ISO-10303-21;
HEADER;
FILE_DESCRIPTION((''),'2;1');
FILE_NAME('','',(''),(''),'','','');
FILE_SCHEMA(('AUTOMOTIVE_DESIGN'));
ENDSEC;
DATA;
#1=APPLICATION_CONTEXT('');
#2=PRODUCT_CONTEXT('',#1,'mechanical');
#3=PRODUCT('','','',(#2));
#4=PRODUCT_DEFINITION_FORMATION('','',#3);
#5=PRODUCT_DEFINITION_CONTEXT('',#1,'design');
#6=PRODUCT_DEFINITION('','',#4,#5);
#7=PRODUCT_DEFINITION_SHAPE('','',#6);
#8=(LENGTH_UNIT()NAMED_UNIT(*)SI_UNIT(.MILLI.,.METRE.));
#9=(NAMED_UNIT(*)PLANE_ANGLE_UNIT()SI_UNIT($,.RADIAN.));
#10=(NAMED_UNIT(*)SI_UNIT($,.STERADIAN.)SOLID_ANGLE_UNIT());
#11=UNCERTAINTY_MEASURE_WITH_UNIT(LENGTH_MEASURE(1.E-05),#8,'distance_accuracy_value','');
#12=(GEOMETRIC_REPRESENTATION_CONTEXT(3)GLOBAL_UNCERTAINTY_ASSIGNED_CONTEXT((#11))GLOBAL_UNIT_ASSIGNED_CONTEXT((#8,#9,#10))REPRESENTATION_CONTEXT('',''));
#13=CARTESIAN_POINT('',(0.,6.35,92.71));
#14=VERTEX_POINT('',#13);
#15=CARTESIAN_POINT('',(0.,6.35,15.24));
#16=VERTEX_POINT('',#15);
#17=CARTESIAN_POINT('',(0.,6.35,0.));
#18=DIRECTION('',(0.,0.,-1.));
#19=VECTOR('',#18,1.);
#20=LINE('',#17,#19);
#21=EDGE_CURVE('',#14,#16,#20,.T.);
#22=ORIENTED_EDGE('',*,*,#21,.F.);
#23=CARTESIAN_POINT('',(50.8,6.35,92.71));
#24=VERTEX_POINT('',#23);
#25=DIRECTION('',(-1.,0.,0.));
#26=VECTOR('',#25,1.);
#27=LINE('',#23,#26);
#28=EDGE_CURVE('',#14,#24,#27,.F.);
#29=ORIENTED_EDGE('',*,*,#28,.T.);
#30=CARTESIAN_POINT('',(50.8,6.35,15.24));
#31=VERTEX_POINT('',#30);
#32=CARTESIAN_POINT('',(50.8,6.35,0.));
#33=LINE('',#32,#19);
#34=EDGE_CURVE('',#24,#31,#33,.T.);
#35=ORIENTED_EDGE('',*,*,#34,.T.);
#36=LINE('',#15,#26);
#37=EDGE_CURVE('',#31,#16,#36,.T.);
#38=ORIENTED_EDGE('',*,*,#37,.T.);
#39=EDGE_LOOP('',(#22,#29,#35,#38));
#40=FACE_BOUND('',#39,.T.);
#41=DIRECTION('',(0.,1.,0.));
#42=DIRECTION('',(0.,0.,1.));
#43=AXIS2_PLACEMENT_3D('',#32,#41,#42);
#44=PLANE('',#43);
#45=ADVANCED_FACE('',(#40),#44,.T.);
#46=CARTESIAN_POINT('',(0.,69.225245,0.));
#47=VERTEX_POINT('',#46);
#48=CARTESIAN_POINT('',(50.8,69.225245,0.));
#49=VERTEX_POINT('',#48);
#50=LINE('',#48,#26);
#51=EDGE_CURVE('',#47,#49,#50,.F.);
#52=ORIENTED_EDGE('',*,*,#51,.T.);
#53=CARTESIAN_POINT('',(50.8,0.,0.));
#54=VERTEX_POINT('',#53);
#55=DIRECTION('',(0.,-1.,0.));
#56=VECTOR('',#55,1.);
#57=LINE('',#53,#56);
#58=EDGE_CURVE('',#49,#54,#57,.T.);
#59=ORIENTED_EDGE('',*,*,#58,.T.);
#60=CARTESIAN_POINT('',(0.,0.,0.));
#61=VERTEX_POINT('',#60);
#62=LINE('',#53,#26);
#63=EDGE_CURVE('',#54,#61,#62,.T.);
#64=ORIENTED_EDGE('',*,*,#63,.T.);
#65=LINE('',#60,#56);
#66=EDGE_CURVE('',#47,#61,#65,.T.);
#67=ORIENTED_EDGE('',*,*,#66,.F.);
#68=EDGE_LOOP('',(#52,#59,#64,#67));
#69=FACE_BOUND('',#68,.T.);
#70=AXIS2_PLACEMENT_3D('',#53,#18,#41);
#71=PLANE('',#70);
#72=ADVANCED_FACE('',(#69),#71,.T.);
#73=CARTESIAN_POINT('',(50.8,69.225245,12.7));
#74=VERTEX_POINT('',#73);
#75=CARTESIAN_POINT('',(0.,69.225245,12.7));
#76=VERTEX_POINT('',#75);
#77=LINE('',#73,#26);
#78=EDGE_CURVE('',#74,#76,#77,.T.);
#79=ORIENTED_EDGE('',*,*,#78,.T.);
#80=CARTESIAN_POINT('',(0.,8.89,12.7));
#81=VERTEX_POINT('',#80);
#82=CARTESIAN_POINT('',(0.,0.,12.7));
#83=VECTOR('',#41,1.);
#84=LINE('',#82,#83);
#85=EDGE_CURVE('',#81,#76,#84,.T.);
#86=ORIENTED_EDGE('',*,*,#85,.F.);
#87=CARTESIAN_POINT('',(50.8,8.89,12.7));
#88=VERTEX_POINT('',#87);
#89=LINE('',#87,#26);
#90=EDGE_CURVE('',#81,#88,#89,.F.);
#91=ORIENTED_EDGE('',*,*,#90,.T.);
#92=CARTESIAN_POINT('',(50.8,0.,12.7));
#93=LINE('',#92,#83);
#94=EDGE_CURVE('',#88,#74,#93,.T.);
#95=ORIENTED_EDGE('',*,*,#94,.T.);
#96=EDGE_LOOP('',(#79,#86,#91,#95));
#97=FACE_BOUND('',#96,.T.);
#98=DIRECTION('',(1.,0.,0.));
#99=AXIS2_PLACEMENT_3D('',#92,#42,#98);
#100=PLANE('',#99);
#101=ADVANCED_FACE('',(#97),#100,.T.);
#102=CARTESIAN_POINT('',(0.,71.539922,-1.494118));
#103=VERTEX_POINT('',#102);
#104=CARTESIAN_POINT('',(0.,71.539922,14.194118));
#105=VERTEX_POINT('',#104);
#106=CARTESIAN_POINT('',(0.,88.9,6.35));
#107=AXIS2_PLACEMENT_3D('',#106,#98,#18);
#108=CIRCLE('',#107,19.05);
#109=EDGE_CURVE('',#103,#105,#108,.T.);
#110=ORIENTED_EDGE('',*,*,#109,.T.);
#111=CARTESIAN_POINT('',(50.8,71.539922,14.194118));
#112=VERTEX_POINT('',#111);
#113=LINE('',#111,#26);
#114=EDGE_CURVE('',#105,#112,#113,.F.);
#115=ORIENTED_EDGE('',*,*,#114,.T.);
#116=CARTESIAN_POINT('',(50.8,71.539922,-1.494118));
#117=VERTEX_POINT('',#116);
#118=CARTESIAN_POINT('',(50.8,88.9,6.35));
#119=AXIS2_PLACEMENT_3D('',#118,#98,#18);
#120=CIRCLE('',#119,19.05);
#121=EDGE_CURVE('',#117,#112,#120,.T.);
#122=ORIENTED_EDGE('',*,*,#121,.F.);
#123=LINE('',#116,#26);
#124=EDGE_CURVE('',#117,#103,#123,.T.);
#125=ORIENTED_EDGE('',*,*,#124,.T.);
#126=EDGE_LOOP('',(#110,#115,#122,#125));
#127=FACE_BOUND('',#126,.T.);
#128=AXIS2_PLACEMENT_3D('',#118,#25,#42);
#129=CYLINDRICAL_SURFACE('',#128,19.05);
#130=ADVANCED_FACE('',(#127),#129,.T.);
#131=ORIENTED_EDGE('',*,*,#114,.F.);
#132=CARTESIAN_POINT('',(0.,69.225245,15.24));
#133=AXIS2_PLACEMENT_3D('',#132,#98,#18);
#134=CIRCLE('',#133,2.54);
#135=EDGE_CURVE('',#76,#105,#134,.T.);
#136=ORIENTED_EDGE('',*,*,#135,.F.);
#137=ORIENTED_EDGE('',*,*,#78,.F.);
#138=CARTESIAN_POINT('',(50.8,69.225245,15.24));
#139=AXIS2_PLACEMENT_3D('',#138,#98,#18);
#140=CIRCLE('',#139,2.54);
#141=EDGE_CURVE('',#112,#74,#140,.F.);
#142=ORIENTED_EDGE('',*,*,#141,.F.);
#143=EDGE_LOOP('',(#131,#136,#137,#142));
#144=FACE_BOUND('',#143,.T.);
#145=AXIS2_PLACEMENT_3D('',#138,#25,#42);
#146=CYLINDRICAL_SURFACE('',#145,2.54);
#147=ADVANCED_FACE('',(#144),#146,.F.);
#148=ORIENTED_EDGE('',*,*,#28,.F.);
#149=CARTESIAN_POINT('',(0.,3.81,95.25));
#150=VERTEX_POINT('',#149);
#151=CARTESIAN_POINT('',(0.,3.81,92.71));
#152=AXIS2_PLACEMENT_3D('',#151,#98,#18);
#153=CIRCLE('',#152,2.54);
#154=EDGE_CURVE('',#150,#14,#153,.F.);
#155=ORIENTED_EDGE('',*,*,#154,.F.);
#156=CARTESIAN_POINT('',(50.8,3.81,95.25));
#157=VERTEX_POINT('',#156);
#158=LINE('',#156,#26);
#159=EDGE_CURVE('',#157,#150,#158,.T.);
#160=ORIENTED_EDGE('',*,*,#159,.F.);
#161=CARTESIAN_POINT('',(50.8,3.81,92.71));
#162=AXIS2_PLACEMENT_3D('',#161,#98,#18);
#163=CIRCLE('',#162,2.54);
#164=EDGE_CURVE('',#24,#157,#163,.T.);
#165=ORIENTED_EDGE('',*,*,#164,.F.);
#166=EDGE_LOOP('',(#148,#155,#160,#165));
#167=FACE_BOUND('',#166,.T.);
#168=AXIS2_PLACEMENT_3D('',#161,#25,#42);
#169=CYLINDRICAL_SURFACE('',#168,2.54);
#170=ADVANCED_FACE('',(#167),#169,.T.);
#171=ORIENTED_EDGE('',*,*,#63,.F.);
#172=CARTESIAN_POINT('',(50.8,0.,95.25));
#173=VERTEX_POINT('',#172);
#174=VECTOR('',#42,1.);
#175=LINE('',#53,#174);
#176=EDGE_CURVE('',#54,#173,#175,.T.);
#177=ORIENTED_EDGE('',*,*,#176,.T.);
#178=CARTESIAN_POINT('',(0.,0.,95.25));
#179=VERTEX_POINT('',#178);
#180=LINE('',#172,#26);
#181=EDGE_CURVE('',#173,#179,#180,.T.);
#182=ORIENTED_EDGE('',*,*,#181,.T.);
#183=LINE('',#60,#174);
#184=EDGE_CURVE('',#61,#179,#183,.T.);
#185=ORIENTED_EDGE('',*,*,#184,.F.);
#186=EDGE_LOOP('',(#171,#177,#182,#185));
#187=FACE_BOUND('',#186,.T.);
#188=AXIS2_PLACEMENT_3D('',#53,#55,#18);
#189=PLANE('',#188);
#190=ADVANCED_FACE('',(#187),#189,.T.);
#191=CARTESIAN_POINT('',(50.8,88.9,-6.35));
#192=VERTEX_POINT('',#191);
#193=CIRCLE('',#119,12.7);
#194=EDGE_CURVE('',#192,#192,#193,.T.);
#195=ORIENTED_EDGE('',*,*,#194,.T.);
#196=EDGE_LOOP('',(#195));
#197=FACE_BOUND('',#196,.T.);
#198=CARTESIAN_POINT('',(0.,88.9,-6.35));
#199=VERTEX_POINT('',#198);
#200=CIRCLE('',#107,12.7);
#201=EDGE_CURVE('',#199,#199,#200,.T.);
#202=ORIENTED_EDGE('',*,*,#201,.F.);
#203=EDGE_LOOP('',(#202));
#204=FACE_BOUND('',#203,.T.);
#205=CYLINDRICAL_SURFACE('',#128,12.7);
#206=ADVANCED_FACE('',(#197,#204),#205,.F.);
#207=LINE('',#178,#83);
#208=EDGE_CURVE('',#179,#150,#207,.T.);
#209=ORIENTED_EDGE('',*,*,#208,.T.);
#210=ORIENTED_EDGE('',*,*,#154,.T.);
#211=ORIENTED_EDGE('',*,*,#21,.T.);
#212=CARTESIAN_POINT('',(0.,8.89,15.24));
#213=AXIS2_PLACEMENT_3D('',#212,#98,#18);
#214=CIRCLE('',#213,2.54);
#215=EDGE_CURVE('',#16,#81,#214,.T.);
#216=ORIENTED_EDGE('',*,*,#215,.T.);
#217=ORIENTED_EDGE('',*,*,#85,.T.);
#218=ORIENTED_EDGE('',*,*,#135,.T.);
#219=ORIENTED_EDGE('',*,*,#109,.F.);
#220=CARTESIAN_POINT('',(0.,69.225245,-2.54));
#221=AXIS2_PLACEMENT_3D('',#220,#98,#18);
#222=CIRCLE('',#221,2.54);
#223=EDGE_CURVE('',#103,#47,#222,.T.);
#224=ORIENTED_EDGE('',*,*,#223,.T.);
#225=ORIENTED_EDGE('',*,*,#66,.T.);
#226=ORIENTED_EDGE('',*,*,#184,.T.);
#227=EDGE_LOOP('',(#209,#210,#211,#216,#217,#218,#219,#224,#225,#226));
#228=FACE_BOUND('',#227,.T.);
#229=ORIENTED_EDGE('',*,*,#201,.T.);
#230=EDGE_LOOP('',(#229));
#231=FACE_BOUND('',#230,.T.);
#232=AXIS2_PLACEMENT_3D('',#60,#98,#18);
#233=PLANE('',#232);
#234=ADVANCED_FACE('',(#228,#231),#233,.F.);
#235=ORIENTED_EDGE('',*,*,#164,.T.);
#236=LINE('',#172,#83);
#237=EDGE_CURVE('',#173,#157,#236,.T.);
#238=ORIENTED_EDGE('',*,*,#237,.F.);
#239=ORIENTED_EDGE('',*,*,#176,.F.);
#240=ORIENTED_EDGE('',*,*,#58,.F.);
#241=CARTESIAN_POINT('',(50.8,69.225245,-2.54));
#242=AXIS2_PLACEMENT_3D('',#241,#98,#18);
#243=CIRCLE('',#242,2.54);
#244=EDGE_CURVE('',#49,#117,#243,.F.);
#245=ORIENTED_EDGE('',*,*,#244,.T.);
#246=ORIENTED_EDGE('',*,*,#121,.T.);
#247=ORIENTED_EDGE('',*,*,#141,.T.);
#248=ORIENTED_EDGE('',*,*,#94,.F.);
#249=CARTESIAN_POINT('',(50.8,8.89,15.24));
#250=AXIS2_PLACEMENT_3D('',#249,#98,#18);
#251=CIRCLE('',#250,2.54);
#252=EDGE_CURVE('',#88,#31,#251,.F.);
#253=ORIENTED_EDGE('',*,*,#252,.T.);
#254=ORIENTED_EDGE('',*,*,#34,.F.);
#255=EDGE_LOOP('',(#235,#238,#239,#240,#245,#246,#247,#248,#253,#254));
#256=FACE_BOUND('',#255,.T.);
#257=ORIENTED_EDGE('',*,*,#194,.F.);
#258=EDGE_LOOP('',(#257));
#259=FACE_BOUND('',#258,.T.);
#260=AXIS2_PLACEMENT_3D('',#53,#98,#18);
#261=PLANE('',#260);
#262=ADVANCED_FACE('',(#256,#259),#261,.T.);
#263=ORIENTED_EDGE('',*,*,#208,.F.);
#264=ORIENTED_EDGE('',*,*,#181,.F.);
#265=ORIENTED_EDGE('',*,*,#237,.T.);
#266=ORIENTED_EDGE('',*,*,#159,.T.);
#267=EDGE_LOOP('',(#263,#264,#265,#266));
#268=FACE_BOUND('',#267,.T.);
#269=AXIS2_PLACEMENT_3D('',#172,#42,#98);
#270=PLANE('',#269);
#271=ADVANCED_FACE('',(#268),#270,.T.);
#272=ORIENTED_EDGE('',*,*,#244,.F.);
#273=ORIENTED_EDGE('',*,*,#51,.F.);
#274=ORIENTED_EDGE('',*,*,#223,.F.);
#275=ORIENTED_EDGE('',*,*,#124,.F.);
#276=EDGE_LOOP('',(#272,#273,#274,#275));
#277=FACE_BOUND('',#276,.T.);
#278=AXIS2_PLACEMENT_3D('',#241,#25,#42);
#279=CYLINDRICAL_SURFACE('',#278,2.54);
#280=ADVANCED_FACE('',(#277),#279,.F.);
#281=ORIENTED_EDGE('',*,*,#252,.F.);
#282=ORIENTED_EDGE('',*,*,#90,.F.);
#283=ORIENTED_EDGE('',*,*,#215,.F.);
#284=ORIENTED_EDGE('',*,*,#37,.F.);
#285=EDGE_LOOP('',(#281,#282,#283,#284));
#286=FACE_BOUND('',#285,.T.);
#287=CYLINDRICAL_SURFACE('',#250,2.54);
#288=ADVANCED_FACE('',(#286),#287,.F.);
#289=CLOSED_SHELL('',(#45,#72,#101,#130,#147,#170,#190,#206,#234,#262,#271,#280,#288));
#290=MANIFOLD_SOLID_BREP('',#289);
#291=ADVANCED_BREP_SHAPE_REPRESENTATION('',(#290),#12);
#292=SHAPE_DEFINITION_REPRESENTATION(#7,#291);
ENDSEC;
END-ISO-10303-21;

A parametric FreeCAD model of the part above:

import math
import FreeCAD as App
import Part
import Sketcher
Q = App.Units.Quantity


def edges_at(feature, points):
    """Names of the edges that pass closest to the given points."""
    edges = feature.Shape.Edges
    near = lambda p: min(range(len(edges)), key=lambda i: edges[i].distToShape(Part.Vertex(*p))[0])
    return sorted({f"Edge{near(p) + 1}" for p in points})

doc = App.newDocument("Part")
body = doc.addObject("PartDesign::Body", "Body")

sketch1 = doc.addObject("Sketcher::SketchObject", "Sketch")
body.addObject(sketch1)
sketch1.AttachmentSupport = (doc.YZ_Plane, [""])
sketch1.MapMode = "FlatFace"
sketch1.addGeometry(Part.LineSegment(App.Vector(0, 95.25, 0), App.Vector(0, 0, 0)), False)
sketch1.addGeometry(Part.LineSegment(App.Vector(0, 0, 0), App.Vector(70.939488, 0, 0)), False)
sketch1.addGeometry(Part.ArcOfCircle(Part.Circle(App.Vector(88.9, 6.35, 0), App.Vector(0, 0, 1), 19.05), math.radians(-160.528779), math.radians(-90)), False)
sketch1.addGeometry(Part.ArcOfCircle(Part.Circle(App.Vector(88.9, 6.35, 0), App.Vector(0, 0, 1), 19.05), math.radians(-90), math.radians(160.528779)), False)
sketch1.addGeometry(Part.LineSegment(App.Vector(70.939488, 12.7, 0), App.Vector(6.35, 12.7, 0)), False)
sketch1.addGeometry(Part.LineSegment(App.Vector(6.35, 12.7, 0), App.Vector(6.35, 95.25, 0)), False)
sketch1.addGeometry(Part.LineSegment(App.Vector(6.35, 95.25, 0), App.Vector(0, 95.25, 0)), False)
sketch1.addGeometry(Part.Circle(App.Vector(88.9, 6.35, 0), App.Vector(0, 0, 1), 12.7), False)
sketch1.addConstraint(Sketcher.Constraint("Coincident", 0, 2, 1, 1))
sketch1.addConstraint(Sketcher.Constraint("Coincident", 1, 2, 2, 1))
sketch1.addConstraint(Sketcher.Constraint("Tangent", 2, 2, 3, 1))
sketch1.addConstraint(Sketcher.Constraint("Coincident", 3, 2, 4, 1))
sketch1.addConstraint(Sketcher.Constraint("Coincident", 4, 2, 5, 1))
sketch1.addConstraint(Sketcher.Constraint("Coincident", 5, 2, 6, 1))
sketch1.addConstraint(Sketcher.Constraint("Coincident", 6, 2, 0, 1))
sketch1.addConstraint(Sketcher.Constraint("Vertical", 0))
sketch1.addConstraint(Sketcher.Constraint("Horizontal", 1))
sketch1.addConstraint(Sketcher.Constraint("Horizontal", 4))
sketch1.addConstraint(Sketcher.Constraint("Vertical", 5))
sketch1.addConstraint(Sketcher.Constraint("Horizontal", 6))
sketch1.addConstraint(Sketcher.Constraint("Coincident", 0, 2, -1, 1))
sketch1.addConstraint(Sketcher.Constraint("Coincident", 7, 3, 2, 3))
sketch1.addConstraint(Sketcher.Constraint("Equal", 2, 3))
sketch1.addConstraint(Sketcher.Constraint("Vertical", 7, 3, 2, 2))
sketch1.addConstraint(Sketcher.Constraint("Vertical", 1, 2, 3, 2))
sketch1.addConstraint(Sketcher.Constraint("Diameter", 7, Q("1 in")))
sketch1.addConstraint(Sketcher.Constraint("Radius", 2, Q("0.75 in")))
sketch1.addConstraint(Sketcher.Constraint("DistanceY", 2, 2, 3, 2, Q("1 in")))
sketch1.addConstraint(Sketcher.Constraint("DistanceX", 6, 2, 6, 1, Q("0.25 in")))
sketch1.addConstraint(Sketcher.Constraint("DistanceY", 0, 2, 0, 1, Q("3.75 in")))
sketch1.addConstraint(Sketcher.Constraint("DistanceX", -1, 1, 2, 3, Q("3.5 in")))
pad1 = doc.addObject("PartDesign::Pad", "Pad")
body.addObject(pad1)
pad1.Profile = sketch1
pad1.Length = Q("2 in")
doc.recompute()

fillet = doc.addObject("PartDesign::Fillet", "Fillet")
body.addObject(fillet)
fillet.Base = (pad1, edges_at(pad1, [(25.4, 6.35, 12.7), (25.4, 70.939, 12.7), (25.4, 70.939, 0)]))
fillet.Radius = Q("0.1 in")
doc.recompute()

fillet2 = doc.addObject("PartDesign::Fillet", "Fillet001")
body.addObject(fillet2)
fillet2.Base = (fillet, edges_at(fillet, [(25.4, 6.35, 95.25)]))
fillet2.Radius = Q("0.1 in")

doc.recompute()
